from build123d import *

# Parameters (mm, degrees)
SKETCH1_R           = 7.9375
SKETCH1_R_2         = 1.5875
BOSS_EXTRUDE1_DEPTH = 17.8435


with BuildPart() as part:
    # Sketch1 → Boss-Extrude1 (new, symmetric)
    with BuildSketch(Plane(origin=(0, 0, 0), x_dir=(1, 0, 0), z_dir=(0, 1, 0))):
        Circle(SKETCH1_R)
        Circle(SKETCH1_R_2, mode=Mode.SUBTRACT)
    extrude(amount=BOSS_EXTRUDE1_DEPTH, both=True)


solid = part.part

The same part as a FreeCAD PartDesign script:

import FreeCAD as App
import Part
import Sketcher
from FreeCAD import Vector
Q = App.Units.Quantity

doc = App.newDocument("Part")
body = doc.addObject("PartDesign::Body", "Body")

sketch1 = body.newObject("Sketcher::SketchObject", "Sketch")
sketch1.AttachmentSupport = (doc.getObject("XZ_Plane"), [""])
sketch1.MapMode = "FlatFace"
sketch1.addGeometry([
    Part.Circle(Vector(0, 0, 0), Vector(0, 0, 1), 7.9),
    Part.Circle(Vector(0, 0, 0), Vector(0, 0, 1), 1.6),
], False)
sketch1.addConstraint([
    Sketcher.Constraint("Coincident", 0, 3, -1, 1),
    Sketcher.Constraint("Coincident", 1, 3, -1, 1),
    Sketcher.Constraint("Diameter", 0, Q("0.625 in")),
    Sketcher.Constraint("Diameter", 1, Q("0.125 in")),
])
pad1 = body.newObject("PartDesign::Pad", "Pad")
pad1.Profile = sketch1
pad1.Length = Q("1.405 in")
pad1.Midplane = True

doc.recompute()
